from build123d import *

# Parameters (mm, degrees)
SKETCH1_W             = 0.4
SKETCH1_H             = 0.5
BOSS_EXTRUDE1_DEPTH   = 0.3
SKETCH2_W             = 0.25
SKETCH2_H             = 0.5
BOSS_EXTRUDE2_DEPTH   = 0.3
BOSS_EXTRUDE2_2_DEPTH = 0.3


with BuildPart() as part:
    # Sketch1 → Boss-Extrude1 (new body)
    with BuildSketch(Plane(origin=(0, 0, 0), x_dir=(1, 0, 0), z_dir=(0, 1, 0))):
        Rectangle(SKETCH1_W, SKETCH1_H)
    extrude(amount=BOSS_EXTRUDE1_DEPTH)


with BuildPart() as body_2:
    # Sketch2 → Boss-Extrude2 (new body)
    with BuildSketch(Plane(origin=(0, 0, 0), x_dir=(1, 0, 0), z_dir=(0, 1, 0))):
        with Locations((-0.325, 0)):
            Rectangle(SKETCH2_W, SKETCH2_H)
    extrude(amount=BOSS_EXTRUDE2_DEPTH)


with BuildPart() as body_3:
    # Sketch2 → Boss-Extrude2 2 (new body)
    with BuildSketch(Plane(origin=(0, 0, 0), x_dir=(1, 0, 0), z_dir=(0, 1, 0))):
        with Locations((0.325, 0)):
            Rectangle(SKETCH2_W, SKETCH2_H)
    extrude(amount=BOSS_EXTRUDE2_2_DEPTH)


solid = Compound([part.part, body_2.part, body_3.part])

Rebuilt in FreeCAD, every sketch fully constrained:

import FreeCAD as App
import Part
import Sketcher
Q = App.Units.Quantity


def add_polygon(sketch, points):
    """Adds a closed chain of lines whose ends are joined by coincident constraints."""
    first, n = sketch.GeometryCount, len(points)
    for a, b in zip(points, points[1:] + points[:1]):
        sketch.addGeometry(Part.LineSegment(App.Vector(*a, 0), App.Vector(*b, 0)), False)
    for i in range(n):
        sketch.addConstraint(Sketcher.Constraint("Coincident", first + i, 2, first + (i + 1) % n, 1))

doc = App.newDocument("Part")
params = doc.addObject("Spreadsheet::Sheet", "Params")
for row, (alias, value) in enumerate([
    ("sketch1_width", "0.4 mm"),
    ("sketch1_height", "0.5 mm"),
    ("pad1_length", "0.3 mm"),
    ("sketch2_height", "0.5 mm"),
    ("sketch2_width", "0.25 mm"),
    ("pad2_length", "0.3 mm"),
    ("sketch3_height", "0.5 mm"),
    ("sketch3_width", "0.25 mm"),
    ("pad3_length", "0.3 mm"),
], start=1):
    params.set(f"A{row}", alias)
    params.set(f"B{row}", "=" + value)
    params.setAlias(f"B{row}", alias)

body = doc.addObject("PartDesign::Body", "Body")

# Sketch on XZ plane
sketch1 = body.newObject("Sketcher::SketchObject", "Sketch")
sketch1.AttachmentSupport = (doc.getObject("XZ_Plane"), [""])
sketch1.MapMode = "FlatFace"
add_polygon(sketch1, [(-0.2, -0.25), (-0.2, 0.25), (0.2, 0.25), (0.2, -0.25)])  # lines 0-3
sketch1.addConstraint([
    Sketcher.Constraint("Vertical", 0),
    Sketcher.Constraint("Horizontal", 1),
    Sketcher.Constraint("Vertical", 2),
    Sketcher.Constraint("Horizontal", 3),
    Sketcher.Constraint("Symmetric", 0, 2, 2, 2, -1, 1),
    Sketcher.Constraint("DistanceX", 1, 1, 1, 2, Q("0.4 mm")),
    Sketcher.Constraint("DistanceY", 0, 1, 0, 2, Q("0.5 mm")),
])
sketch1.setExpression("Constraints[9]", "Params.sketch1_width")
sketch1.setExpression("Constraints[10]", "Params.sketch1_height")
pad1 = body.newObject("PartDesign::Pad", "Pad")
pad1.Profile = sketch1
pad1.setExpression("Length", "Params.pad1_length")
pad1.Reversed = True
body2 = doc.addObject("PartDesign::Body", "Body001")

# Sketch on XZ plane
sketch2 = body2.newObject("Sketcher::SketchObject", "Sketch001")
sketch2.AttachmentSupport = (doc.getObject("XZ_Plane001"), [""])
sketch2.MapMode = "FlatFace"
add_polygon(sketch2, [(-0.45, -0.25), (-0.45, 0.25), (-0.2, 0.25), (-0.2, -0.25)])  # lines 0-3
sketch2.addConstraint([
    Sketcher.Constraint("Vertical", 0),
    Sketcher.Constraint("Horizontal", 1),
    Sketcher.Constraint("Vertical", 2),
    Sketcher.Constraint("Horizontal", 3),
    Sketcher.Constraint("DistanceY", 0, 1, 0, 2, Q("0.5 mm")),
    Sketcher.Constraint("DistanceX", 1, 1, 1, 2, Q("0.25 mm")),
    Sketcher.Constraint("DistanceX", 1, 2, -1, 1, Q("0.2 mm")),
    Sketcher.Constraint("DistanceY", -1, 1, 0, 2, Q("0.25 mm")),
])
sketch2.setExpression("Constraints[8]", "Params.sketch2_height")
sketch2.setExpression("Constraints[9]", "Params.sketch2_width")
pad2 = body2.newObject("PartDesign::Pad", "Pad001")
pad2.Profile = sketch2
pad2.setExpression("Length", "Params.pad2_length")
pad2.Reversed = True
body3 = doc.addObject("PartDesign::Body", "Body002")

# Sketch on XZ plane
sketch3 = body3.newObject("Sketcher::SketchObject", "Sketch002")
sketch3.AttachmentSupport = (doc.getObject("XZ_Plane002"), [""])
sketch3.MapMode = "FlatFace"
add_polygon(sketch3, [(0.2, -0.25), (0.2, 0.25), (0.45, 0.25), (0.45, -0.25)])  # lines 0-3
sketch3.addConstraint([
    Sketcher.Constraint("Vertical", 0),
    Sketcher.Constraint("Horizontal", 1),
    Sketcher.Constraint("Vertical", 2),
    Sketcher.Constraint("Horizontal", 3),
    Sketcher.Constraint("DistanceY", 0, 1, 0, 2, Q("0.5 mm")),
    Sketcher.Constraint("DistanceX", 1, 1, 1, 2, Q("0.25 mm")),
    Sketcher.Constraint("DistanceX", -1, 1, 0, 2, Q("0.2 mm")),
    Sketcher.Constraint("DistanceY", -1, 1, 0, 2, Q("0.25 mm")),
])
sketch3.setExpression("Constraints[8]", "Params.sketch3_height")
sketch3.setExpression("Constraints[9]", "Params.sketch3_width")
pad3 = body3.newObject("PartDesign::Pad", "Pad002")
pad3.Profile = sketch3
pad3.setExpression("Length", "Params.pad3_length")
pad3.Reversed = True

doc.recompute()
